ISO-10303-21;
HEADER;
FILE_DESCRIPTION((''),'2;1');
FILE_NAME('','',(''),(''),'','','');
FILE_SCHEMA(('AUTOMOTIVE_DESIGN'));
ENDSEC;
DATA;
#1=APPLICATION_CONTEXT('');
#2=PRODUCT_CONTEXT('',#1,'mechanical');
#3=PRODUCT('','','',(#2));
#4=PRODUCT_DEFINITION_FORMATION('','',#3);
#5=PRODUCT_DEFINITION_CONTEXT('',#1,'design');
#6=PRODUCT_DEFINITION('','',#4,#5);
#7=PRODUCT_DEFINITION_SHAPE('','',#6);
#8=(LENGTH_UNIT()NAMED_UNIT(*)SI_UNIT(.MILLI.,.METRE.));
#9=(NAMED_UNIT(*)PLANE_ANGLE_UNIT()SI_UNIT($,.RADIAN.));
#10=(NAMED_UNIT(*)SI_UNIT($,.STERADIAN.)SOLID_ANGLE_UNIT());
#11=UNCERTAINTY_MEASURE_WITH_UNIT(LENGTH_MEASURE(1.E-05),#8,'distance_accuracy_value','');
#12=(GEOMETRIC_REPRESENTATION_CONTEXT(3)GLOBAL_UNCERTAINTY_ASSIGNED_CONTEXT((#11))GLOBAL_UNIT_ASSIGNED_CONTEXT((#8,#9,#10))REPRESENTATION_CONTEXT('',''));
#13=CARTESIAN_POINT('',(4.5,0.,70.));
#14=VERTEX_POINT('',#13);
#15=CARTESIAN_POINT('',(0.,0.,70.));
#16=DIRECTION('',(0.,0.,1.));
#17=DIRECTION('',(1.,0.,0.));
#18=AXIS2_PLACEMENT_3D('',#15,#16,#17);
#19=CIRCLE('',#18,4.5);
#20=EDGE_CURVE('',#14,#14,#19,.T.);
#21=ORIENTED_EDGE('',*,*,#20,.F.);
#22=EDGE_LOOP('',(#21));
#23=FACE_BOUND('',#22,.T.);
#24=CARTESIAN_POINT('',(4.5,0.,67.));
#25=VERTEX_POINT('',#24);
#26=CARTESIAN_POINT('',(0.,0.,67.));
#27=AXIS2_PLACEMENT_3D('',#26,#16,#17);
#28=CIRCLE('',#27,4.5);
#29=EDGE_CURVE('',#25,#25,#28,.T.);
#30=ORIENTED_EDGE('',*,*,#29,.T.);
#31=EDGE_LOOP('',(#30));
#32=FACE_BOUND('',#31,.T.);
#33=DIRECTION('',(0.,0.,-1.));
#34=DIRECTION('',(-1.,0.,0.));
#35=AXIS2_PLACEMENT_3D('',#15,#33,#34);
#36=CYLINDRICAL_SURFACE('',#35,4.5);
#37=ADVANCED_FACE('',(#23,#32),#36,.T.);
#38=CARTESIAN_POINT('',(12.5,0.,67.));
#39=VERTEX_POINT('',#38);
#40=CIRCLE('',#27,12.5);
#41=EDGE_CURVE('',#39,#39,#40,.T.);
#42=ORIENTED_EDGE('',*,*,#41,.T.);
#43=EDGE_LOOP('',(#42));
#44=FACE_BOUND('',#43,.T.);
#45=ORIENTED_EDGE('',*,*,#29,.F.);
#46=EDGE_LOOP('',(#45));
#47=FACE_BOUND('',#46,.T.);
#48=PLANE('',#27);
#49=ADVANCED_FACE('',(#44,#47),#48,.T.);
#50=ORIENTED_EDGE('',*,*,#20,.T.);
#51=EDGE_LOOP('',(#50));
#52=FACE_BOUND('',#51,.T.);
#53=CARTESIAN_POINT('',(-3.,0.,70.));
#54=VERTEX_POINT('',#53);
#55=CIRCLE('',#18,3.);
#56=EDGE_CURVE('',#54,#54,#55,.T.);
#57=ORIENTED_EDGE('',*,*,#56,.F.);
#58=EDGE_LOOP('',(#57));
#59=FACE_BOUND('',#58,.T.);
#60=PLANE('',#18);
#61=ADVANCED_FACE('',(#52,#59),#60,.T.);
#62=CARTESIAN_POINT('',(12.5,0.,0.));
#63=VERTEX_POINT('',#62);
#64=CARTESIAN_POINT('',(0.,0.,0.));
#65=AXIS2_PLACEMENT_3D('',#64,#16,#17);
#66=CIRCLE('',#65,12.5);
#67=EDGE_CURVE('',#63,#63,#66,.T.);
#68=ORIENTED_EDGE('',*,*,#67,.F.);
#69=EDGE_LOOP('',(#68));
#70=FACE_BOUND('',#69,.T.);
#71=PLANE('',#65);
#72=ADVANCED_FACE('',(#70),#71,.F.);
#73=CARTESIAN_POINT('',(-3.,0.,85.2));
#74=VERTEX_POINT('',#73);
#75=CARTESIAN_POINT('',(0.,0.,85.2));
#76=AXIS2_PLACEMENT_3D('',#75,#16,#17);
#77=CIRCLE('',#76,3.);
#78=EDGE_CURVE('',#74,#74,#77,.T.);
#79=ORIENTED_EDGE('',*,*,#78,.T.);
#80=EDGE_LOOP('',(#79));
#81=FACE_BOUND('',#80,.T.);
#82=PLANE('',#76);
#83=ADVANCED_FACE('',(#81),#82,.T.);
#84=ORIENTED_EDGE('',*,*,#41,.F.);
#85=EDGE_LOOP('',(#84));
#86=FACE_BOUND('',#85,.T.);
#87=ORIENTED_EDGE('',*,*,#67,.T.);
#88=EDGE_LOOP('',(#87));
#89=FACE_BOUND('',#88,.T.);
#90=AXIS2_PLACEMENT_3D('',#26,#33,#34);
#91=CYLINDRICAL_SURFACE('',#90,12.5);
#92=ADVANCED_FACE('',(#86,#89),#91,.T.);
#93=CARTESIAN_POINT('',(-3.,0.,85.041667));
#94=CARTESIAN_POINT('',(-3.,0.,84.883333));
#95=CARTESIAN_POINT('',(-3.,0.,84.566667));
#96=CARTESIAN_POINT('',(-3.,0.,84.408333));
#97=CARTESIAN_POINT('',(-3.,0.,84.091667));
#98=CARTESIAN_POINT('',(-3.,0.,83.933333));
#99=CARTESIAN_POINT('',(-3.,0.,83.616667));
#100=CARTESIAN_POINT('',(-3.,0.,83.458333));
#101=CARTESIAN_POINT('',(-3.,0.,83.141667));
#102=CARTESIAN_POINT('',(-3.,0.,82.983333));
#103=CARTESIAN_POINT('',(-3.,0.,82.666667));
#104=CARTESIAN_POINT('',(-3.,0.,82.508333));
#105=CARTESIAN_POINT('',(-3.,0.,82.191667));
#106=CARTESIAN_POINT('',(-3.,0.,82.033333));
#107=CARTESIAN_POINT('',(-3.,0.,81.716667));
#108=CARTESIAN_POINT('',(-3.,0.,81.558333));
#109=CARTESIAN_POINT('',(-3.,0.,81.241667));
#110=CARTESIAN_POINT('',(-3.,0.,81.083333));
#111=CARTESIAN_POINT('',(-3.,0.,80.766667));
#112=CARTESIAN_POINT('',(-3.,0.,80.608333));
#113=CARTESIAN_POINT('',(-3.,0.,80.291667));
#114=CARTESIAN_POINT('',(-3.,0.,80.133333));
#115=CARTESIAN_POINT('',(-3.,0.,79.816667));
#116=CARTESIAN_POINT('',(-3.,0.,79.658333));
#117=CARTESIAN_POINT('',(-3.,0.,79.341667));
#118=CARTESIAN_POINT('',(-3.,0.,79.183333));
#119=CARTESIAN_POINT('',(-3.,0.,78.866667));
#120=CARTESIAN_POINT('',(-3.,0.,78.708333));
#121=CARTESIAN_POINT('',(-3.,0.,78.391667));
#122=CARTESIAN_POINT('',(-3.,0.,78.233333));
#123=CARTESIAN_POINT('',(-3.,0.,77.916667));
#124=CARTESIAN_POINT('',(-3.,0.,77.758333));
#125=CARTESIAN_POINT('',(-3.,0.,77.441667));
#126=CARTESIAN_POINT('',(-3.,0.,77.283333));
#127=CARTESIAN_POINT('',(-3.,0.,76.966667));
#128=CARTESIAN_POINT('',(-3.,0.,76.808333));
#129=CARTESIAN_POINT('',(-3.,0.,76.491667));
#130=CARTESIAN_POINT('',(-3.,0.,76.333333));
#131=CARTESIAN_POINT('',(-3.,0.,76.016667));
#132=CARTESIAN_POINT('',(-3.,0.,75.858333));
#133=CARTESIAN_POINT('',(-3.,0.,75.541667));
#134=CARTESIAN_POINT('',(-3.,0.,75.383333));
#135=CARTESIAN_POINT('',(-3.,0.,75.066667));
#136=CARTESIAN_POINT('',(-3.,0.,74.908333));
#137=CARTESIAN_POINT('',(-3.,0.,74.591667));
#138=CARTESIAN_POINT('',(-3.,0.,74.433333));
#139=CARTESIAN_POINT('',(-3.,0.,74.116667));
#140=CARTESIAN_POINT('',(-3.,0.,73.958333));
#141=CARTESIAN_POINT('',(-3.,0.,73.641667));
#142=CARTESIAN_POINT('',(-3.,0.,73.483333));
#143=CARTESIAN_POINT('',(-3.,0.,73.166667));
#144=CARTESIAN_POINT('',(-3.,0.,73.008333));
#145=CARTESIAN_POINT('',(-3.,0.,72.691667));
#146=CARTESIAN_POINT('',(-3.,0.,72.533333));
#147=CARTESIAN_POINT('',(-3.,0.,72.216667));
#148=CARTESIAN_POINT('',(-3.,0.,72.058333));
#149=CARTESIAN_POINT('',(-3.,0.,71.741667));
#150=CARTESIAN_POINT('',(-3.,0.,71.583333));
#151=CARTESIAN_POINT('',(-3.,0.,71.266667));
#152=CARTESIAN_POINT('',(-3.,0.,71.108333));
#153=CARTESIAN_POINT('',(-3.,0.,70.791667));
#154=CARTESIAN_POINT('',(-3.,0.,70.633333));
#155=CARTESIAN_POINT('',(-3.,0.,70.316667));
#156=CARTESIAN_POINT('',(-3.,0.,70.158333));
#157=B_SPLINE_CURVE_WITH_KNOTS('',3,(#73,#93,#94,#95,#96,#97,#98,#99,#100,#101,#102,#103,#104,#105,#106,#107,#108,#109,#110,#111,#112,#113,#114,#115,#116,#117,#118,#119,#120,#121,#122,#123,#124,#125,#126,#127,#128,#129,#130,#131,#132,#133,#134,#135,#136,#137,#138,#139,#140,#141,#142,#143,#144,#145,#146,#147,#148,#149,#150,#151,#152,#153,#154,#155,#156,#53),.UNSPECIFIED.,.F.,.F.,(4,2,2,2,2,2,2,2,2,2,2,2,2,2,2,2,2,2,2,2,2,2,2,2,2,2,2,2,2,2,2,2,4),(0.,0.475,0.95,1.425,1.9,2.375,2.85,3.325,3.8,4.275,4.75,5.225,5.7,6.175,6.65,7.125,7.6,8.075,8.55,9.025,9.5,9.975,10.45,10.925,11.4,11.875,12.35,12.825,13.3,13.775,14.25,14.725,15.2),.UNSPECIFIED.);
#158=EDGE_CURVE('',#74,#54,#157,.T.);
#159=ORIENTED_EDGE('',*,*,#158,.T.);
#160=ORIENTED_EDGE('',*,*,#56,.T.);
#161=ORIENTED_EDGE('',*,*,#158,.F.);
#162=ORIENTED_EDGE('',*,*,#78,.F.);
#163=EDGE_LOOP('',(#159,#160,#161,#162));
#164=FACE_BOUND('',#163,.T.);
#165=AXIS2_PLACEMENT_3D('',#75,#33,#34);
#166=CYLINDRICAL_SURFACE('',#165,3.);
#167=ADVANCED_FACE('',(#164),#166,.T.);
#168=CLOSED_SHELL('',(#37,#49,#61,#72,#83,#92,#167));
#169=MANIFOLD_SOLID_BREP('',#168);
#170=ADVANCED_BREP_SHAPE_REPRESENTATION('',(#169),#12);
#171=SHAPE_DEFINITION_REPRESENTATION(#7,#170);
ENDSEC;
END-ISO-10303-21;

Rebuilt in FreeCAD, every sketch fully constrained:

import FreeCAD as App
import Part
import Sketcher

V = App.Vector
Q = App.Units.Quantity

doc = App.newDocument("Part")
body = doc.addObject("PartDesign::Body", "Body")

# Sketch on XY plane
sketch1 = body.newObject("Sketcher::SketchObject", "Sketch")
sketch1.AttachmentSupport = (doc.getObject("XY_Plane"), [""])
sketch1.MapMode = "FlatFace"
sketch1.addGeometry(Part.Circle(V(0, 0, 0), V(0, 0, 1), 12), False)
sketch1.addConstraint([
    Sketcher.Constraint("Coincident", 0, 3, -1, 1),
    Sketcher.Constraint("Diameter", 0, Q("25 mm")),
])
pad1 = body.newObject("PartDesign::Pad", "Pad")
pad1.Profile = sketch1
pad1.Length = 67

# Sketch on XY plane
sketch2 = body.newObject("Sketcher::SketchObject", "Sketch001")
sketch2.AttachmentSupport = (doc.getObject("XY_Plane"), [""])
sketch2.MapMode = "FlatFace"
sketch2.AttachmentOffset = App.Placement(V(0, 0, 67), App.Rotation())
sketch2.addGeometry(Part.Circle(V(0, 0, 0), V(0, 0, 1), 4.5), False)
sketch2.addConstraint([
    Sketcher.Constraint("Coincident", 0, 3, -1, 1),
    Sketcher.Constraint("Diameter", 0, Q("9 mm")),
])
pad2 = body.newObject("PartDesign::Pad", "Pad001")
pad2.Profile = sketch2
pad2.Length = 3

# Sketch on XY plane
sketch3 = body.newObject("Sketcher::SketchObject", "Sketch002")
sketch3.AttachmentSupport = (doc.getObject("XY_Plane"), [""])
sketch3.MapMode = "FlatFace"
sketch3.AttachmentOffset = App.Placement(V(0, 0, 70), App.Rotation())
sketch3.addGeometry(Part.Circle(V(0, 0, 0), V(0, 0, 1), 3), False)
sketch3.addConstraint([
    Sketcher.Constraint("Coincident", 0, 3, -1, 1),
    Sketcher.Constraint("Diameter", 0, Q("6 mm")),
])
pad3 = body.newObject("PartDesign::Pad", "Pad002")
pad3.Profile = sketch3
pad3.Length = 15.2

doc.recompute()
